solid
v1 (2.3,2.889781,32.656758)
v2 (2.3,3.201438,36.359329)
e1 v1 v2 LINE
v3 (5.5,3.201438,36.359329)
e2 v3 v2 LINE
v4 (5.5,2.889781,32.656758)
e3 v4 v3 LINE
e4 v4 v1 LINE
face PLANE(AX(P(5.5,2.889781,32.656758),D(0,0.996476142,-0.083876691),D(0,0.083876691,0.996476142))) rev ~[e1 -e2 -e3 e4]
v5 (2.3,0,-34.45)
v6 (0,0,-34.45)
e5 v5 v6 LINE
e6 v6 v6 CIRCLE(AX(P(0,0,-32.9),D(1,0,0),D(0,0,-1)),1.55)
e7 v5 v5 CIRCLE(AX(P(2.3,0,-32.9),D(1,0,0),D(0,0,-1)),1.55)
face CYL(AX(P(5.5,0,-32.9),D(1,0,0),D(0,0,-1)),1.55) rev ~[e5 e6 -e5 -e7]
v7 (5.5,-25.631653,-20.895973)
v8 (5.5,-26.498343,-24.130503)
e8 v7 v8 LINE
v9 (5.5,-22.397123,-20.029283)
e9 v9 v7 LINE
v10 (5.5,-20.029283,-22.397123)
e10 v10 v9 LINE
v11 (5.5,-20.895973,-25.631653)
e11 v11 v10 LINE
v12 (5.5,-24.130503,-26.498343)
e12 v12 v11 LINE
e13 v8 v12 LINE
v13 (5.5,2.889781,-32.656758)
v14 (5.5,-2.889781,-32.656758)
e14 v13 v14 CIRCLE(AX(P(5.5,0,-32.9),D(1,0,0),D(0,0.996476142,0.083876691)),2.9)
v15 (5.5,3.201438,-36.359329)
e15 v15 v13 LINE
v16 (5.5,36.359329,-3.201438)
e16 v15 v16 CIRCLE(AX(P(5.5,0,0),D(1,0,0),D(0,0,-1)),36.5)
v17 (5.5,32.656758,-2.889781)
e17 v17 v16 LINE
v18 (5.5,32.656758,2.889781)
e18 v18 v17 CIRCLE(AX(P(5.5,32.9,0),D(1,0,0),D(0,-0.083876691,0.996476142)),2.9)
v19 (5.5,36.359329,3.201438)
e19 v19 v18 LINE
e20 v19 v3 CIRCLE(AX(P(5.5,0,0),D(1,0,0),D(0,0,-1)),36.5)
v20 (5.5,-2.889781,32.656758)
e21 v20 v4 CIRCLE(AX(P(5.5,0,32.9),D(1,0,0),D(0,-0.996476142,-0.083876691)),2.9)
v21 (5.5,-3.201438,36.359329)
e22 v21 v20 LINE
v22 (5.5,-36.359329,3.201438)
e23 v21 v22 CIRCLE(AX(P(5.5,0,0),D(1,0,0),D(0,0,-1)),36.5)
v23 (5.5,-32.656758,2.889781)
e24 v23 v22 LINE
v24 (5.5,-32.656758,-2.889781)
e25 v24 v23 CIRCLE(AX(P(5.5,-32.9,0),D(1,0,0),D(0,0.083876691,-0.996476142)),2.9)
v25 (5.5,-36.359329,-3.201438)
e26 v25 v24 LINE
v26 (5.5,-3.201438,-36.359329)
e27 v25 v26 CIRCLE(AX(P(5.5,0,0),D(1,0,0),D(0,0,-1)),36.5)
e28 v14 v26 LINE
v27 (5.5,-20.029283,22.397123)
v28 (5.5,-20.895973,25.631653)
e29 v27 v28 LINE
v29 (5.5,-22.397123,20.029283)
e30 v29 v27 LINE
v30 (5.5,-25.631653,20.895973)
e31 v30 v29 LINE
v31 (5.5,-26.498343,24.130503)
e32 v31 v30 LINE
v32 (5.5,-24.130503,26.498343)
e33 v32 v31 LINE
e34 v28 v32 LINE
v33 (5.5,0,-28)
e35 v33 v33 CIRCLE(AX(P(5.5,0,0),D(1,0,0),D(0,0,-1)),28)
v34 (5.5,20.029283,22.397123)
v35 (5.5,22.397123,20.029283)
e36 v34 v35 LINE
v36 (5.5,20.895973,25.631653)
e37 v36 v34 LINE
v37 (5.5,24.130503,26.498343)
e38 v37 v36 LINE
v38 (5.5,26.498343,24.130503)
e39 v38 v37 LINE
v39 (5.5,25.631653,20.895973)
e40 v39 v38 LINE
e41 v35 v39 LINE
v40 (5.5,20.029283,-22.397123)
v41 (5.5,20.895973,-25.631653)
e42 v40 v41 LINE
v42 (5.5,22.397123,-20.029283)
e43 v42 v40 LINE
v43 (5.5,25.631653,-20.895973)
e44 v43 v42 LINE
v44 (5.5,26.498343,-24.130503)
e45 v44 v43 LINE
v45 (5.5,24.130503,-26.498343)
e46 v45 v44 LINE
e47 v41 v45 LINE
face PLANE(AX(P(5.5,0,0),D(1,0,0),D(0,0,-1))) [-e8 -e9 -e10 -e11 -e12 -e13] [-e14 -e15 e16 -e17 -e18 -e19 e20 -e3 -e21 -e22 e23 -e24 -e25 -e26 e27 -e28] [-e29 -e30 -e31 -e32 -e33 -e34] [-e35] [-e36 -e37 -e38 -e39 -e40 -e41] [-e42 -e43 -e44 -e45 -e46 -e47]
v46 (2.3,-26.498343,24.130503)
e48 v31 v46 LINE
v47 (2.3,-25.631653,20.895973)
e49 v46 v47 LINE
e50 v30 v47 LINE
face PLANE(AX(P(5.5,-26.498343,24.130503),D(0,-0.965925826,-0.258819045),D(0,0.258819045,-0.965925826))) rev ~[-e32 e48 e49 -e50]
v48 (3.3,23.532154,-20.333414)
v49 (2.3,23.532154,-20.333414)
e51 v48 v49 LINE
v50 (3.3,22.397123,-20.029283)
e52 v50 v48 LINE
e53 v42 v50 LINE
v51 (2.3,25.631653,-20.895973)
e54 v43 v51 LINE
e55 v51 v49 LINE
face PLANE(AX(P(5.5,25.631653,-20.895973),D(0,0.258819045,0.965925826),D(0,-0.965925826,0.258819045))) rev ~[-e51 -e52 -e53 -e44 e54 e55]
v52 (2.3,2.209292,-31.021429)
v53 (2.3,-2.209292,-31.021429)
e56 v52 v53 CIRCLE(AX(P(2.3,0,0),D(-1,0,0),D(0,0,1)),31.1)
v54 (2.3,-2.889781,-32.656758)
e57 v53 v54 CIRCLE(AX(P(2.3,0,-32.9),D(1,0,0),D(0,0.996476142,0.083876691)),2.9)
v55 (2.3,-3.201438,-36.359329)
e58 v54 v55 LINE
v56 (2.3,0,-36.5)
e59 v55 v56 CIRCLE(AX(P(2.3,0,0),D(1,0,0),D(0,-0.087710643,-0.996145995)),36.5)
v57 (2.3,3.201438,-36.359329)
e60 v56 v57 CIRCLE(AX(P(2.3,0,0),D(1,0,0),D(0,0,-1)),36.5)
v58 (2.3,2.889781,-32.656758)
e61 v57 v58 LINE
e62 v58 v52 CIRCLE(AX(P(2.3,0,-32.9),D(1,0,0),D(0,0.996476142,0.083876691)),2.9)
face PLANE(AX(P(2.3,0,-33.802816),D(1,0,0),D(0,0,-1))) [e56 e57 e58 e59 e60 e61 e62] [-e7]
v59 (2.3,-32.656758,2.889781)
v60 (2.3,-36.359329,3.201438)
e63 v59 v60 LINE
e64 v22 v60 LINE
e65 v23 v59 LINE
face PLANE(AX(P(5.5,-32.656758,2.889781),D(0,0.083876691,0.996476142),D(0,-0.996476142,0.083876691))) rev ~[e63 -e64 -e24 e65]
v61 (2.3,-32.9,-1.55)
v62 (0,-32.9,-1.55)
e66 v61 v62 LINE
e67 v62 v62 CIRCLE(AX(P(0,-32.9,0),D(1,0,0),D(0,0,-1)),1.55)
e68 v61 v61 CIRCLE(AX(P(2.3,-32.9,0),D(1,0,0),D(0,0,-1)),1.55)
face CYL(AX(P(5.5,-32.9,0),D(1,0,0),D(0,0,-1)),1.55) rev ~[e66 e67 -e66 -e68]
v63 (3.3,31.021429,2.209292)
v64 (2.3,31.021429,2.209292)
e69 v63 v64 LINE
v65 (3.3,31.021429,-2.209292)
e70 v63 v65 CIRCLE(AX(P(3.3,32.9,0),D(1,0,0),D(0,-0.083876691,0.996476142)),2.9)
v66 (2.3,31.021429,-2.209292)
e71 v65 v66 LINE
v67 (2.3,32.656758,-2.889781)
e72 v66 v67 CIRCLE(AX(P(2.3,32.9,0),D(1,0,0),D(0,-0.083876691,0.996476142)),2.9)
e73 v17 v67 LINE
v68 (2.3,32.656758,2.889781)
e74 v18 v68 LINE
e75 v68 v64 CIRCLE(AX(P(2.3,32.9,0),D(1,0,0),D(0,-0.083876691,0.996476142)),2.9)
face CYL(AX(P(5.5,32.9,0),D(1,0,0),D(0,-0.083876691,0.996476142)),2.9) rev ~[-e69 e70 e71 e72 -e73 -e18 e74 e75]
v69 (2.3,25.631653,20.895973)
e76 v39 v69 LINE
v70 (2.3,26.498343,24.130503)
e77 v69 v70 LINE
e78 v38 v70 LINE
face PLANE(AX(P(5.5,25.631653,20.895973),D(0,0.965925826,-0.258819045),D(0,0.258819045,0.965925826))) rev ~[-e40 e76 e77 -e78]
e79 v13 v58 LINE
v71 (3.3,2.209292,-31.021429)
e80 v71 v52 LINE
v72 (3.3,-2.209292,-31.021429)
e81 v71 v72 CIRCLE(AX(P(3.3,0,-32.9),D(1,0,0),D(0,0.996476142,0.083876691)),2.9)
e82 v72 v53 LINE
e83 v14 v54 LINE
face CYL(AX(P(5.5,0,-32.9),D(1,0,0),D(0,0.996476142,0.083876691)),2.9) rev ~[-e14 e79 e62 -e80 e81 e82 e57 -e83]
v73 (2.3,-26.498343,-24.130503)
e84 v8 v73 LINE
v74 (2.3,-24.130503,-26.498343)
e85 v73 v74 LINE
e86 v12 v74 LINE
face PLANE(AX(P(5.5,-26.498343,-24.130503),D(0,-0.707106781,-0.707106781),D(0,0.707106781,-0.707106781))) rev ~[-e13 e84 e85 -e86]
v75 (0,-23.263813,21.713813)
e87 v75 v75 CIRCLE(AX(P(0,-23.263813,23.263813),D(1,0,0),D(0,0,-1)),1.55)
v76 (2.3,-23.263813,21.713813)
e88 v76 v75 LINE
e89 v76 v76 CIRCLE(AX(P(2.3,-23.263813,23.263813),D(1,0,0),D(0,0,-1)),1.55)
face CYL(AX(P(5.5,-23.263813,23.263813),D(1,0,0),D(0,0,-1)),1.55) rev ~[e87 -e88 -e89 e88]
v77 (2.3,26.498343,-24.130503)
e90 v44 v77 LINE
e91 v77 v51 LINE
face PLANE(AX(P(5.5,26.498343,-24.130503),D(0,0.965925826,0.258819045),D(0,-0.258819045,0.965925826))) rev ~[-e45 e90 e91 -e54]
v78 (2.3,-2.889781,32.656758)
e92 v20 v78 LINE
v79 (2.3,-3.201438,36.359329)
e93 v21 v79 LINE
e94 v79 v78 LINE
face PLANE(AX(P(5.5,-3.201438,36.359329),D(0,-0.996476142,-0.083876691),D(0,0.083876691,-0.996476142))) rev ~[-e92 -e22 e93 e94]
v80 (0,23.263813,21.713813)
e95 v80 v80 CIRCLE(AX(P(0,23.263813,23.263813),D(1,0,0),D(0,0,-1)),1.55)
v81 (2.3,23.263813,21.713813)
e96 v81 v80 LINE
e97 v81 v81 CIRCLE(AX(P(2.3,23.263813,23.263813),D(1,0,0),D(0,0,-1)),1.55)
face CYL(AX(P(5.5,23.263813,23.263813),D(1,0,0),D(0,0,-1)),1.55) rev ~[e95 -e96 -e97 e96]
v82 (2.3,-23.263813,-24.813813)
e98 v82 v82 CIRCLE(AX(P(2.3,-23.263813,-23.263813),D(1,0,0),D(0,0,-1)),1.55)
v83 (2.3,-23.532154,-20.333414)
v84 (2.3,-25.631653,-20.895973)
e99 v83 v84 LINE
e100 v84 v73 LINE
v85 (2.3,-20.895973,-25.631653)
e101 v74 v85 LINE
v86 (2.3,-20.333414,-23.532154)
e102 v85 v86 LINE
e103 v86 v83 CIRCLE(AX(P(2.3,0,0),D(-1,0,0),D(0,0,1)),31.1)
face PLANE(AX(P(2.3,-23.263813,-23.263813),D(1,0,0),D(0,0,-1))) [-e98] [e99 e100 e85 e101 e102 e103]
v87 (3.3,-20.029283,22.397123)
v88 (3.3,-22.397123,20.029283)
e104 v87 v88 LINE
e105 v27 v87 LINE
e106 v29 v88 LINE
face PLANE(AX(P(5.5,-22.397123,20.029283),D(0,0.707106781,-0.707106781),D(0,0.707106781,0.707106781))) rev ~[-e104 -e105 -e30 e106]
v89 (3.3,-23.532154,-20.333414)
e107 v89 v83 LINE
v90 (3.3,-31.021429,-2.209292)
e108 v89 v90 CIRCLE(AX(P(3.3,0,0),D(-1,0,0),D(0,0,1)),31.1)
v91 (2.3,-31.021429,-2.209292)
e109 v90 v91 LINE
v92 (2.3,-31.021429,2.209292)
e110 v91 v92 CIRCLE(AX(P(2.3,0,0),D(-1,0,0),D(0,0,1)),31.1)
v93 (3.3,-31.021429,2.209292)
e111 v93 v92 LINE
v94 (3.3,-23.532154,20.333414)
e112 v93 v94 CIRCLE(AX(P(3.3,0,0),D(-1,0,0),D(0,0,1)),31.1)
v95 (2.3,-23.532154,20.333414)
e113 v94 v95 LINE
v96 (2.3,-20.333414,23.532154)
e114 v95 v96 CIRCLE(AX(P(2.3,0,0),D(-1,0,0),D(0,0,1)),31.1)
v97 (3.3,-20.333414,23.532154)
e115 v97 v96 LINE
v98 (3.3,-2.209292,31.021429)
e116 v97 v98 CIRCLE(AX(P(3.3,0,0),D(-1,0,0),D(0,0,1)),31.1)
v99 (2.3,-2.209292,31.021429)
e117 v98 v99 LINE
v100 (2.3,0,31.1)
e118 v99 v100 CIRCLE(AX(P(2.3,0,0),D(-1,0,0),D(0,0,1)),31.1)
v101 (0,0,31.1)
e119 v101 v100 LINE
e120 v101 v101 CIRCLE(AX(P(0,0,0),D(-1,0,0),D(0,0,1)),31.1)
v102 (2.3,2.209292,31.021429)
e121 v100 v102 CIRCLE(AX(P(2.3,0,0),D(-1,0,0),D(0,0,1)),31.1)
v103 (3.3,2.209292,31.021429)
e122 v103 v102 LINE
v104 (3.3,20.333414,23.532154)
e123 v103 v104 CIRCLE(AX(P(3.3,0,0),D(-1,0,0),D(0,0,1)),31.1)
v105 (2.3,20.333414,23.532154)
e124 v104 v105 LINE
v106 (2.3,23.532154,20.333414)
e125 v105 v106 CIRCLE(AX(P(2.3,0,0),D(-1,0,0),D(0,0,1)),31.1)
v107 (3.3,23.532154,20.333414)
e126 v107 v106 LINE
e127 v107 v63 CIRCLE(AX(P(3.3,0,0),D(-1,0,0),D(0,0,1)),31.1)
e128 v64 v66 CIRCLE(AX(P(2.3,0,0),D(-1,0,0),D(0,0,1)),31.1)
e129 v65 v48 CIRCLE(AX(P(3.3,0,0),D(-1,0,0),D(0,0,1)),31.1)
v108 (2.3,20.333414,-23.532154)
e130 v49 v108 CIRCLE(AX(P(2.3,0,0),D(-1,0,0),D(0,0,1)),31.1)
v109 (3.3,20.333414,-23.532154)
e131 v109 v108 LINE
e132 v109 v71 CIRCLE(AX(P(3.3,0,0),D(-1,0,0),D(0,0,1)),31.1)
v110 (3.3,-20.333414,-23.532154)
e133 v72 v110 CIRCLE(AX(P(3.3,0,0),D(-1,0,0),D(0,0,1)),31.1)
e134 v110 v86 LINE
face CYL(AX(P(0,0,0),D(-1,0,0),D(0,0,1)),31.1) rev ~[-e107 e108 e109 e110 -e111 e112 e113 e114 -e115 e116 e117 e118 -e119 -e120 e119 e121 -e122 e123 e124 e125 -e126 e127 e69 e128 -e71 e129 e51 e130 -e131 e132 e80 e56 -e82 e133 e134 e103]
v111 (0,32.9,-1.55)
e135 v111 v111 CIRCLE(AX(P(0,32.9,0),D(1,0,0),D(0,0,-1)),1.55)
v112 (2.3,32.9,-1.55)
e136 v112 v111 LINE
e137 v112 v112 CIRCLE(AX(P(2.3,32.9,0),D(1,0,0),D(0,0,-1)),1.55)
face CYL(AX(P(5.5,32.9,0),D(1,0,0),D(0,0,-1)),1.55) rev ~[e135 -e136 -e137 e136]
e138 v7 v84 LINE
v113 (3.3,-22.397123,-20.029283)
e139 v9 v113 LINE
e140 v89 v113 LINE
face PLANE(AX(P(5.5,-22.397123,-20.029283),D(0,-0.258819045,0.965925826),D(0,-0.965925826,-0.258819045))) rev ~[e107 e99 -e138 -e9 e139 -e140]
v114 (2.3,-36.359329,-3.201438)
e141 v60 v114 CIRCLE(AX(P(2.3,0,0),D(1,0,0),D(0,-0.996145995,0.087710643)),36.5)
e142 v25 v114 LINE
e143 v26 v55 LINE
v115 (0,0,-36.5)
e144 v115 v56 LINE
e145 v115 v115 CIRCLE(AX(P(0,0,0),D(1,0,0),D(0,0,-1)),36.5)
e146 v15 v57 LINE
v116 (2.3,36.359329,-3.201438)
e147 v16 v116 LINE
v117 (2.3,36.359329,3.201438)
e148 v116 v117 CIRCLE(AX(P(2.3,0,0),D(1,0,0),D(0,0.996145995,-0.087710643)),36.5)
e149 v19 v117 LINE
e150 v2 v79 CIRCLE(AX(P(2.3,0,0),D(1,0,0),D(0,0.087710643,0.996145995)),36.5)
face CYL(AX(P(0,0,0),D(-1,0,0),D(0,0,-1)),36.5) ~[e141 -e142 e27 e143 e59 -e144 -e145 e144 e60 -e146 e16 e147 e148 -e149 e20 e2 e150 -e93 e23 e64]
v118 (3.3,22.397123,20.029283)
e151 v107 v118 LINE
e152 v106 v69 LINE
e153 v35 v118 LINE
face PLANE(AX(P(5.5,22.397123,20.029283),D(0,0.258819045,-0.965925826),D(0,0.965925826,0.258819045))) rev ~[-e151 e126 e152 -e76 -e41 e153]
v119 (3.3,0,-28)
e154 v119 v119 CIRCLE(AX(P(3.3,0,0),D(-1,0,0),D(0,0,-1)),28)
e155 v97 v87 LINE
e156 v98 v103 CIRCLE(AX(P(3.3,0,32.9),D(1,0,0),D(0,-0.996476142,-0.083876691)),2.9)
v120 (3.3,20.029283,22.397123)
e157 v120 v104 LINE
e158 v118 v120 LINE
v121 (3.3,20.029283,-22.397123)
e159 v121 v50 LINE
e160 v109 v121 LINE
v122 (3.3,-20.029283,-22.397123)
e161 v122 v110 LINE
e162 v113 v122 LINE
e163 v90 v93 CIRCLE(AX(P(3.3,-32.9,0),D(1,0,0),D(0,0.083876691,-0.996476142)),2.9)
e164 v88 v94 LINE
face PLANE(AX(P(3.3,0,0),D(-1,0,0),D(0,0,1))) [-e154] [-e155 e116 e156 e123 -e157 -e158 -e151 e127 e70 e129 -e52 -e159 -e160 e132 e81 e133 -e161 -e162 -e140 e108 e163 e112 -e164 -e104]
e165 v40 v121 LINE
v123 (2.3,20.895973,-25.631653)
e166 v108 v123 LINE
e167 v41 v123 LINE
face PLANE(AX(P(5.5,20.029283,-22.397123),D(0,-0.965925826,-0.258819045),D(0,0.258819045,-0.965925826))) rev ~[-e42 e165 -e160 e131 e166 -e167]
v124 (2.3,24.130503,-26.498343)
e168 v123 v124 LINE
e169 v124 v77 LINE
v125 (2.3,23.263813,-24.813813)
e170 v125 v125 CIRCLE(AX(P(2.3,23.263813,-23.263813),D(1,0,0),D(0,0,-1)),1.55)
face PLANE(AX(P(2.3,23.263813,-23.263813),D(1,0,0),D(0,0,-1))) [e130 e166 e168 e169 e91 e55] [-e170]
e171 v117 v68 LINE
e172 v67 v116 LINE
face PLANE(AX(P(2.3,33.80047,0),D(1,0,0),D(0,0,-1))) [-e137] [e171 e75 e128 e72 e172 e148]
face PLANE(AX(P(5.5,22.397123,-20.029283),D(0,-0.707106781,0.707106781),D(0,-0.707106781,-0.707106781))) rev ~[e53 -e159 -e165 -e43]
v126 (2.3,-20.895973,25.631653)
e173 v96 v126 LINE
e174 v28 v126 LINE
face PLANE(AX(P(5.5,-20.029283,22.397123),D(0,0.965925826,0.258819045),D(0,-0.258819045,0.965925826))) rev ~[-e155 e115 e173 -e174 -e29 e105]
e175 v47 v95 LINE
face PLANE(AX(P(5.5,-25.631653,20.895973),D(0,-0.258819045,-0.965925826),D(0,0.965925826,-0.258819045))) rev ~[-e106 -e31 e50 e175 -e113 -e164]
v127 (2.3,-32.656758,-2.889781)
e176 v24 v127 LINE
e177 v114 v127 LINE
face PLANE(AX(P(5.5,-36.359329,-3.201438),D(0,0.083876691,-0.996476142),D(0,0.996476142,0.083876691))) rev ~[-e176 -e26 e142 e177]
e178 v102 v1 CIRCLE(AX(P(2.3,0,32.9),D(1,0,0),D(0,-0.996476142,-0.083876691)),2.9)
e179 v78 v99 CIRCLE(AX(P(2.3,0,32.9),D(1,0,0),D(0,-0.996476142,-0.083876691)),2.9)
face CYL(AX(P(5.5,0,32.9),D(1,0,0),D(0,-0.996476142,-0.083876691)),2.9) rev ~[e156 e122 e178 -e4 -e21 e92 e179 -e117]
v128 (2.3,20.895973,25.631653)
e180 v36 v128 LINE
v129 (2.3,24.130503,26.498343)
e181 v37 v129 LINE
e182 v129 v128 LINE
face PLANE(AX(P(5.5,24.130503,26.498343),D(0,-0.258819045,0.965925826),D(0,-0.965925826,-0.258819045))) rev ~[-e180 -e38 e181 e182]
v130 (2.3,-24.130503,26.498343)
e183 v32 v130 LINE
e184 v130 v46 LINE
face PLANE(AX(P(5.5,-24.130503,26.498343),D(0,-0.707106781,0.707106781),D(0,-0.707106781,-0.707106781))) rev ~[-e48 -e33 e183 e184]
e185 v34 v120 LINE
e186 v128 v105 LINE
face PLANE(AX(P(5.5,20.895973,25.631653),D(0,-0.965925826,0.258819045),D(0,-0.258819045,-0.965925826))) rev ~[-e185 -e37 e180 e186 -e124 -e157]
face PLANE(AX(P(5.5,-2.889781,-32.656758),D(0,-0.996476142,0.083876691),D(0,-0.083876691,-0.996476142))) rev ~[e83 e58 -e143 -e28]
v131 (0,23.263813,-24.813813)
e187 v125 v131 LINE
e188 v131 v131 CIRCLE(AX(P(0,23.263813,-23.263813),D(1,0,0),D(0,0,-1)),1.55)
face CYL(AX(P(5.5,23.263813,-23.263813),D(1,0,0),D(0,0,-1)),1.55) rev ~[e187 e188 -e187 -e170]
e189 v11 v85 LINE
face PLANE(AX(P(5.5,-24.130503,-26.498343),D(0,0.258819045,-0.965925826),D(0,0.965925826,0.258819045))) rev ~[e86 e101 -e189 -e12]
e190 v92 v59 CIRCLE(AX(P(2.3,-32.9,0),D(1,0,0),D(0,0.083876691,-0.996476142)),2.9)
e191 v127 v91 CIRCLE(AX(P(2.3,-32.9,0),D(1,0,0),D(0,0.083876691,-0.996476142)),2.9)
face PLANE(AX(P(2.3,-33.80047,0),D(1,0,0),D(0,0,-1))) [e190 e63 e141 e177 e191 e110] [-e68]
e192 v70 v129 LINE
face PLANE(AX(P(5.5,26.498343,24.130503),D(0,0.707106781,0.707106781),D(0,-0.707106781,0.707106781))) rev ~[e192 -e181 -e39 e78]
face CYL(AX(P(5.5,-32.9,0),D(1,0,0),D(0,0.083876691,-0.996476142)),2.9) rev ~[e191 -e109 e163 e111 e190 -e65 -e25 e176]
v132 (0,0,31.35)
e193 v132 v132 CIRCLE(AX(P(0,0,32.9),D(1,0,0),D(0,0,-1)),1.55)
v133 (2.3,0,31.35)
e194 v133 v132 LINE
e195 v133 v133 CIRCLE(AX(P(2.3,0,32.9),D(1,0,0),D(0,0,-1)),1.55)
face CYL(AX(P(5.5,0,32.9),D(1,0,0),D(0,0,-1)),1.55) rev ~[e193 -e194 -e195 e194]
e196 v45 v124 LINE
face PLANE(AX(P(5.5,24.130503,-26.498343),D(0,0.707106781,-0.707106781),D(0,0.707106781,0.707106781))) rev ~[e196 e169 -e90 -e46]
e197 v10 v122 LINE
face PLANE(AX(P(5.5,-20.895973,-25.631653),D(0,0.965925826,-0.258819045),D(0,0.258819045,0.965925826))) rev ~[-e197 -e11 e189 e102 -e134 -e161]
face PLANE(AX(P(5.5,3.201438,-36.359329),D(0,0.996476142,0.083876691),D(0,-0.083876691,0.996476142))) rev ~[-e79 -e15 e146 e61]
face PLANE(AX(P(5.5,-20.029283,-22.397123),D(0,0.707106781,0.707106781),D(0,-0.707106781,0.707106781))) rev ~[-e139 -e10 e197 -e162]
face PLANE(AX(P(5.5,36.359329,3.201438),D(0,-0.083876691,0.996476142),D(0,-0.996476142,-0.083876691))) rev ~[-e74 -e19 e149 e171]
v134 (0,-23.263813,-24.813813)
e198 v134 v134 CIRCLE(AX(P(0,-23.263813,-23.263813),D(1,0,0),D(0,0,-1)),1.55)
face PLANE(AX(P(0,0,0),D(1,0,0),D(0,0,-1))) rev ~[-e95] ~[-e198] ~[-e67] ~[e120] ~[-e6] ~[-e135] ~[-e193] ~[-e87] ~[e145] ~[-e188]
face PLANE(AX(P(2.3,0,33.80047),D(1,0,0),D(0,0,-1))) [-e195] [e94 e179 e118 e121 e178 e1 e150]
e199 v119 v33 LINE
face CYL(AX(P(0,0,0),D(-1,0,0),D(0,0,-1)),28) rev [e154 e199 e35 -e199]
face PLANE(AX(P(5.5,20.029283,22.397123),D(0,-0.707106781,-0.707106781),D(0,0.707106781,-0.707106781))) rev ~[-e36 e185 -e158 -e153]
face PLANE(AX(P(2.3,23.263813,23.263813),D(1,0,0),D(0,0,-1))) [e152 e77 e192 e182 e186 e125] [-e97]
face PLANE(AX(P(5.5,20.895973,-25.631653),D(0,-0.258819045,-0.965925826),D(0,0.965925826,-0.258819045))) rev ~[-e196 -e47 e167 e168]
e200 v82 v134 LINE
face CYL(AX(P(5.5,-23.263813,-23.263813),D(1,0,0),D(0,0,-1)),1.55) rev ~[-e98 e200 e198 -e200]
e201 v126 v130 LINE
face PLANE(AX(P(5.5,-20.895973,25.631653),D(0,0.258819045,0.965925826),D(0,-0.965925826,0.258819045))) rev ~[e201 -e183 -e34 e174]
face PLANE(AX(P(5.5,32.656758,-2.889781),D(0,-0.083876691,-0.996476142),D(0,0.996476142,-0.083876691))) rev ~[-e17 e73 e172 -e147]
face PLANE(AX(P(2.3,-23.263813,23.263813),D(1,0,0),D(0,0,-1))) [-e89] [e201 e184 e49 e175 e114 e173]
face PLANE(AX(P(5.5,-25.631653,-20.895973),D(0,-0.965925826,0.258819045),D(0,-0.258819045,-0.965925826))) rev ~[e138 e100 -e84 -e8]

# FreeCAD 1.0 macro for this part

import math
import FreeCAD as App
import Part
import Sketcher
from FreeCAD import Vector
Q = App.Units.Quantity


def add_polygon(sketch, points):
    """Adds a closed chain of lines whose ends are joined by coincident constraints."""
    first, n = sketch.GeometryCount, len(points)
    for a, b in zip(points, points[1:] + points[:1]):
        sketch.addGeometry(Part.LineSegment(App.Vector(*a, 0), App.Vector(*b, 0)), False)
    for i in range(n):
        sketch.addConstraint(Sketcher.Constraint("Coincident", first + i, 2, first + (i + 1) % n, 1))

doc = App.newDocument("Part")
params = doc.addObject("Spreadsheet::Sheet", "Params")
for row, (alias, value) in enumerate([
    ("sketch1_diameter", "73 mm"),
    ("sketch1_diameter2", "56 mm"),
    ("pad1_length", "5.5 mm"),
    ("sketch2_diameter", "62.2 mm"),
    ("pocket1_length", "3.3 mm"),
    ("sketch3_diameter", "3.1 mm"),
    ("sketch4_diameter", "3.1 mm"),
    ("sketch5_diameter", "3.1 mm"),
    ("sketch6_diameter", "3.1 mm"),
    ("sketch7_diameter", "3.1 mm"),
    ("sketch8_diameter", "3.1 mm"),
    ("sketch9_diameter", "3.1 mm"),
    ("sketch10_diameter", "3.1 mm"),
    ("sketch11_diameter", "3.1 mm"),
    ("sketch11_radius", "36.5 mm"),
    ("sketch11_radius2", "2.9 mm"),
    ("pocket10_length", "3.2 mm"),
], start=1):
    params.set(f"A{row}", alias)
    params.set(f"B{row}", "=" + value)
    params.setAlias(f"B{row}", alias)

body = doc.addObject("PartDesign::Body", "Body")

# Sketch on YZ plane
sketch1 = body.newObject("Sketcher::SketchObject", "Sketch")
sketch1.AttachmentSupport = (doc.getObject("YZ_Plane"), [""])
sketch1.MapMode = "FlatFace"
sketch1.addGeometry(Part.Circle(Vector(0, 0, 0), Vector(0, 0, 1), 36), False)
sketch1.addGeometry(Part.Circle(Vector(0, 0, 0), Vector(0, 0, 1), 28), False)
sketch1.addConstraint(Sketcher.Constraint("Coincident", 0, 3, -1, 1))
sketch1.addConstraint(Sketcher.Constraint("Coincident", 1, 3, -1, 1))
sketch1.addConstraint(Sketcher.Constraint("Diameter", 0, Q("73 mm")))
sketch1.addConstraint(Sketcher.Constraint("Diameter", 1, Q("56 mm")))
sketch1.setExpression("Constraints[2]", "Params.sketch1_diameter")
sketch1.setExpression("Constraints[3]", "Params.sketch1_diameter2")
pad1 = body.newObject("PartDesign::Pad", "Pad")
pad1.Profile = sketch1
pad1.setExpression("Length", "Params.pad1_length")

# Sketch on YZ plane
sketch2 = body.newObject("Sketcher::SketchObject", "Sketch001")
sketch2.AttachmentSupport = (doc.getObject("YZ_Plane"), [""])
sketch2.MapMode = "FlatFace"
sketch2.addGeometry(Part.Circle(Vector(0, 0, 0), Vector(0, 0, 1), 31), False)
sketch2.addConstraint(Sketcher.Constraint("Coincident", 0, 3, -1, 1))
sketch2.addConstraint(Sketcher.Constraint("Diameter", 0, Q("62.2 mm")))
sketch2.setExpression("Constraints[1]", "Params.sketch2_diameter")
pocket1 = body.newObject("PartDesign::Pocket", "Pocket")
pocket1.Profile = sketch2
pocket1.setExpression("Length", "Params.pocket1_length")
pocket1.Reversed = True

# Sketch on YZ plane
sketch3 = body.newObject("Sketcher::SketchObject", "Sketch002")
sketch3.AttachmentSupport = (doc.getObject("YZ_Plane"), [""])
sketch3.MapMode = "FlatFace"
sketch3.AttachmentOffset = App.Placement(Vector(0, 0, 5.5), App.Rotation())
sketch3.addGeometry(Part.Circle(Vector(0, -32.9, 0), Vector(0, 0, 1), 1.6), False)
sketch3.addConstraint(Sketcher.Constraint("PointOnObject", 0, 3, -2))
sketch3.addConstraint(Sketcher.Constraint("Diameter", 0, Q("3.1 mm")))
sketch3.addConstraint(Sketcher.Constraint("DistanceY", 0, 3, -1, 1, Q("32.9 mm")))
sketch3.setExpression("Constraints[1]", "Params.sketch3_diameter")
pocket2 = body.newObject("PartDesign::Pocket", "Pocket001")
pocket2.Profile = sketch3
pocket2.Type = "UpToFirst"

# Sketch on YZ plane
sketch4 = body.newObject("Sketcher::SketchObject", "Sketch003")
sketch4.AttachmentSupport = (doc.getObject("YZ_Plane"), [""])
sketch4.MapMode = "FlatFace"
sketch4.AttachmentOffset = App.Placement(Vector(0, 0, 5.5), App.Rotation())
sketch4.addGeometry(Part.Circle(Vector(-23.3, -23.3, 0), Vector(0, 0, 1), 1.6), False)
sketch4.addConstraint(Sketcher.Constraint("Diameter", 0, Q("3.1 mm")))
sketch4.addConstraint(Sketcher.Constraint("DistanceX", 0, 3, -1, 1, Q("23.263813 mm")))
sketch4.addConstraint(Sketcher.Constraint("DistanceY", 0, 3, -1, 1, Q("23.263813 mm")))
sketch4.setExpression("Constraints[0]", "Params.sketch4_diameter")
pocket3 = body.newObject("PartDesign::Pocket", "Pocket002")
pocket3.Profile = sketch4
pocket3.Type = "UpToFirst"

# Sketch on YZ plane
sketch5 = body.newObject("Sketcher::SketchObject", "Sketch004")
sketch5.AttachmentSupport = (doc.getObject("YZ_Plane"), [""])
sketch5.MapMode = "FlatFace"
sketch5.AttachmentOffset = App.Placement(Vector(0, 0, 5.5), App.Rotation())
sketch5.addGeometry(Part.Circle(Vector(-32.9, 0, 0), Vector(0, 0, 1), 1.6), False)
sketch5.addConstraint(Sketcher.Constraint("PointOnObject", 0, 3, -1))
sketch5.addConstraint(Sketcher.Constraint("Diameter", 0, Q("3.1 mm")))
sketch5.addConstraint(Sketcher.Constraint("DistanceX", 0, 3, -1, 1, Q("32.9 mm")))
sketch5.setExpression("Constraints[1]", "Params.sketch5_diameter")
pocket4 = body.newObject("PartDesign::Pocket", "Pocket003")
pocket4.Profile = sketch5
pocket4.Type = "UpToFirst"

# Sketch on YZ plane
sketch6 = body.newObject("Sketcher::SketchObject", "Sketch005")
sketch6.AttachmentSupport = (doc.getObject("YZ_Plane"), [""])
sketch6.MapMode = "FlatFace"
sketch6.AttachmentOffset = App.Placement(Vector(0, 0, 5.5), App.Rotation())
sketch6.addGeometry(Part.Circle(Vector(-23.3, 23.3, 0), Vector(0, 0, 1), 1.6), False)
sketch6.addConstraint(Sketcher.Constraint("Diameter", 0, Q("3.1 mm")))
sketch6.addConstraint(Sketcher.Constraint("DistanceX", 0, 3, -1, 1, Q("23.263813 mm")))
sketch6.addConstraint(Sketcher.Constraint("DistanceY", -1, 1, 0, 3, Q("23.263813 mm")))
sketch6.setExpression("Constraints[0]", "Params.sketch6_diameter")
pocket5 = body.newObject("PartDesign::Pocket", "Pocket004")
pocket5.Profile = sketch6
pocket5.Type = "UpToFirst"

# Sketch on YZ plane
sketch7 = body.newObject("Sketcher::SketchObject", "Sketch006")
sketch7.AttachmentSupport = (doc.getObject("YZ_Plane"), [""])
sketch7.MapMode = "FlatFace"
sketch7.AttachmentOffset = App.Placement(Vector(0, 0, 5.5), App.Rotation())
sketch7.addGeometry(Part.Circle(Vector(0, 32.9, 0), Vector(0, 0, 1), 1.6), False)
sketch7.addConstraint(Sketcher.Constraint("PointOnObject", 0, 3, -2))
sketch7.addConstraint(Sketcher.Constraint("Diameter", 0, Q("3.1 mm")))
sketch7.addConstraint(Sketcher.Constraint("DistanceY", -1, 1, 0, 3, Q("32.9 mm")))
sketch7.setExpression("Constraints[1]", "Params.sketch7_diameter")
pocket6 = body.newObject("PartDesign::Pocket", "Pocket005")
pocket6.Profile = sketch7
pocket6.Type = "UpToFirst"

# Sketch on YZ plane
sketch8 = body.newObject("Sketcher::SketchObject", "Sketch007")
sketch8.AttachmentSupport = (doc.getObject("YZ_Plane"), [""])
sketch8.MapMode = "FlatFace"
sketch8.AttachmentOffset = App.Placement(Vector(0, 0, 5.5), App.Rotation())
sketch8.addGeometry(Part.Circle(Vector(23.3, 23.3, 0), Vector(0, 0, 1), 1.6), False)
sketch8.addConstraint(Sketcher.Constraint("Diameter", 0, Q("3.1 mm")))
sketch8.addConstraint(Sketcher.Constraint("DistanceX", -1, 1, 0, 3, Q("23.263813 mm")))
sketch8.addConstraint(Sketcher.Constraint("DistanceY", -1, 1, 0, 3, Q("23.263813 mm")))
sketch8.setExpression("Constraints[0]", "Params.sketch8_diameter")
pocket7 = body.newObject("PartDesign::Pocket", "Pocket006")
pocket7.Profile = sketch8
pocket7.Type = "UpToFirst"

# Sketch on YZ plane
sketch9 = body.newObject("Sketcher::SketchObject", "Sketch008")
sketch9.AttachmentSupport = (doc.getObject("YZ_Plane"), [""])
sketch9.MapMode = "FlatFace"
sketch9.AttachmentOffset = App.Placement(Vector(0, 0, 5.5), App.Rotation())
sketch9.addGeometry(Part.Circle(Vector(32.9, 0, 0), Vector(0, 0, 1), 1.6), False)
sketch9.addConstraint(Sketcher.Constraint("PointOnObject", 0, 3, -1))
sketch9.addConstraint(Sketcher.Constraint("Diameter", 0, Q("3.1 mm")))
sketch9.addConstraint(Sketcher.Constraint("DistanceX", -1, 1, 0, 3, Q("32.9 mm")))
sketch9.setExpression("Constraints[1]", "Params.sketch9_diameter")
pocket8 = body.newObject("PartDesign::Pocket", "Pocket007")
pocket8.Profile = sketch9
pocket8.Type = "UpToFirst"

# Sketch on YZ plane
sketch10 = body.newObject("Sketcher::SketchObject", "Sketch009")
sketch10.AttachmentSupport = (doc.getObject("YZ_Plane"), [""])
sketch10.MapMode = "FlatFace"
sketch10.AttachmentOffset = App.Placement(Vector(0, 0, 5.5), App.Rotation())
sketch10.addGeometry(Part.Circle(Vector(23.3, -23.3, 0), Vector(0, 0, 1), 1.6), False)
sketch10.addConstraint(Sketcher.Constraint("Diameter", 0, Q("3.1 mm")))
sketch10.addConstraint(Sketcher.Constraint("DistanceX", -1, 1, 0, 3, Q("23.263813 mm")))
sketch10.addConstraint(Sketcher.Constraint("DistanceY", 0, 3, -1, 1, Q("23.263813 mm")))
sketch10.setExpression("Constraints[0]", "Params.sketch10_diameter")
pocket9 = body.newObject("PartDesign::Pocket", "Pocket008")
pocket9.Profile = sketch10
pocket9.Type = "UpToFirst"

# Sketch on YZ plane
sketch11 = body.newObject("Sketcher::SketchObject", "Sketch010")
sketch11.AttachmentSupport = (doc.getObject("YZ_Plane"), [""])
sketch11.MapMode = "FlatFace"
sketch11.AttachmentOffset = App.Placement(Vector(0, 0, 5.5), App.Rotation())
sketch11.addGeometry(Part.LineSegment(Vector(2.9, 32.7, 0), Vector(3.2, 36.4, 0)), False)  # 0
sketch11.addGeometry(Part.ArcOfCircle(Part.Circle(Vector(0, 0, 0), Vector(0, 0, 1), 36.5), math.radians(84.97), math.radians(95.03)), False)  # 1
sketch11.addGeometry(Part.LineSegment(Vector(-3.2, 36.4, 0), Vector(-2.9, 32.7, 0)), False)  # 2
sketch11.addGeometry(Part.ArcOfCircle(Part.Circle(Vector(0, 32.9, 0), Vector(0, 0, 1), 2.9), math.radians(-175), math.radians(-5)), False)  # 3
sketch11.addGeometry(Part.Circle(Vector(0, 32.9, 0), Vector(0, 0, 1), 1.6), False)  # 4
sketch11.addGeometry(Part.LineSegment(Vector(32.7, -2.9, 0), Vector(36.4, -3.2, 0)), False)  # 5
sketch11.addGeometry(Part.ArcOfCircle(Part.Circle(Vector(0, 0, 0), Vector(0, 0, 1), 36.5), math.radians(-5.03), math.radians(5.03)), False)  # 6
sketch11.addGeometry(Part.LineSegment(Vector(36.4, 3.2, 0), Vector(32.7, 2.9, 0)), False)  # 7
sketch11.addGeometry(Part.ArcOfCircle(Part.Circle(Vector(32.9, 0, 0), Vector(0, 0, 1), 2.9), math.radians(95), math.radians(265)), False)  # 8
sketch11.addGeometry(Part.Circle(Vector(32.9, 0, 0), Vector(0, 0, 1), 1.6), False)  # 9
add_polygon(sketch11, [(24.1, -26.5), (26.5, -24.1), (25.6, -20.9), (22.4, -20), (20, -22.4), (20.9, -25.6)])  # lines 10-15
sketch11.addGeometry(Part.Circle(Vector(23.3, -23.3, 0), Vector(0, 0, 1), 1.6), False)  # 16
sketch11.addGeometry(Part.LineSegment(Vector(3.2, -36.4, 0), Vector(2.9, -32.7, 0)), False)  # 17
sketch11.addGeometry(Part.ArcOfCircle(Part.Circle(Vector(0, -32.9, 0), Vector(0, 0, 1), 2.9), math.radians(5), math.radians(175)), False)  # 18
sketch11.addGeometry(Part.LineSegment(Vector(-2.9, -32.7, 0), Vector(-3.2, -36.4, 0)), False)  # 19
sketch11.addGeometry(Part.ArcOfCircle(Part.Circle(Vector(0, 0, 0), Vector(0, 0, 1), 36.5), math.radians(-95.03), math.radians(-90)), False)  # 20
sketch11.addGeometry(Part.ArcOfCircle(Part.Circle(Vector(0, 0, 0), Vector(0, 0, 1), 36.5), math.radians(-90), math.radians(-84.97)), False)  # 21
sketch11.addGeometry(Part.Circle(Vector(0, -32.9, 0), Vector(0, 0, 1), 1.6), False)  # 22
add_polygon(sketch11, [(-26.5, -24.1), (-24.1, -26.5), (-20.9, -25.6), (-20, -22.4), (-22.4, -20), (-25.6, -20.9)])  # lines 23-28
sketch11.addGeometry(Part.Circle(Vector(-23.3, -23.3, 0), Vector(0, 0, 1), 1.6), False)  # 29
sketch11.addGeometry(Part.ArcOfCircle(Part.Circle(Vector(0, 0, 0), Vector(0, 0, 1), 36.5), math.radians(174.97), math.radians(185.03)), False)  # 30
sketch11.addGeometry(Part.LineSegment(Vector(-36.4, -3.2, 0), Vector(-32.7, -2.9, 0)), False)  # 31
sketch11.addGeometry(Part.ArcOfCircle(Part.Circle(Vector(-32.9, 0, 0), Vector(0, 0, 1), 2.9), math.radians(-85), math.radians(85)), False)  # 32
sketch11.addGeometry(Part.LineSegment(Vector(-32.7, 2.9, 0), Vector(-36.4, 3.2, 0)), False)  # 33
sketch11.addGeometry(Part.Circle(Vector(-32.9, 0, 0), Vector(0, 0, 1), 1.6), False)  # 34
add_polygon(sketch11, [(-25.6, 20.9), (-22.4, 20), (-20, 22.4), (-20.9, 25.6), (-24.1, 26.5), (-26.5, 24.1)])  # lines 35-40
add_polygon(sketch11, [(22.4, 20), (25.6, 20.9), (26.5, 24.1), (24.1, 26.5), (20.9, 25.6), (20, 22.4)])  # lines 41-46
sketch11.addConstraint(Sketcher.Constraint("Coincident", 0, 2, 1, 1))
sketch11.addConstraint(Sketcher.Constraint("Coincident", 1, 2, 2, 1))
sketch11.addConstraint(Sketcher.Constraint("Tangent", 2, 2, 3, 1))
sketch11.addConstraint(Sketcher.Constraint("Tangent", 3, 2, 0, 1))
sketch11.addConstraint(Sketcher.Constraint("Coincident", 5, 2, 6, 1))
sketch11.addConstraint(Sketcher.Constraint("Coincident", 6, 2, 7, 1))
sketch11.addConstraint(Sketcher.Constraint("Tangent", 7, 2, 8, 1))
sketch11.addConstraint(Sketcher.Constraint("Tangent", 8, 2, 5, 1))
sketch11.addConstraint(Sketcher.Constraint("Tangent", 17, 2, 18, 1))
sketch11.addConstraint(Sketcher.Constraint("Tangent", 18, 2, 19, 1))
sketch11.addConstraint(Sketcher.Constraint("Coincident", 19, 2, 20, 1))
sketch11.addConstraint(Sketcher.Constraint("Tangent", 20, 2, 21, 1))
sketch11.addConstraint(Sketcher.Constraint("Coincident", 21, 2, 17, 1))
sketch11.addConstraint(Sketcher.Constraint("Coincident", 30, 2, 31, 1))
sketch11.addConstraint(Sketcher.Constraint("Tangent", 31, 2, 32, 1))
sketch11.addConstraint(Sketcher.Constraint("Tangent", 32, 2, 33, 1))
sketch11.addConstraint(Sketcher.Constraint("Coincident", 33, 2, 30, 1))
sketch11.addConstraint(Sketcher.Constraint("Coincident", 1, 3, -1, 1))
sketch11.addConstraint(Sketcher.Constraint("Coincident", 6, 3, -1, 1))
sketch11.addConstraint(Sketcher.Constraint("Coincident", 20, 3, -1, 1))
sketch11.addConstraint(Sketcher.Constraint("Coincident", 30, 3, -1, 1))
sketch11.addConstraint(Sketcher.Constraint("Coincident", 4, 3, 3, 3))
sketch11.addConstraint(Sketcher.Constraint("Coincident", 9, 3, 8, 3))
sketch11.addConstraint(Sketcher.Constraint("Coincident", 22, 3, 18, 3))
sketch11.addConstraint(Sketcher.Constraint("Coincident", 34, 3, 32, 3))
sketch11.addConstraint(Sketcher.Constraint("Equal", 1, 6))
sketch11.addConstraint(Sketcher.Constraint("Equal", 3, 8))
sketch11.addConstraint(Sketcher.Constraint("Equal", 4, 9))
sketch11.addConstraint(Sketcher.Constraint("Equal", 9, 16))
sketch11.addConstraint(Sketcher.Constraint("Equal", 8, 18))
sketch11.addConstraint(Sketcher.Constraint("Equal", 6, 20))
sketch11.addConstraint(Sketcher.Constraint("Equal", 20, 21))
sketch11.addConstraint(Sketcher.Constraint("Equal", 16, 22))
sketch11.addConstraint(Sketcher.Constraint("Equal", 22, 29))
sketch11.addConstraint(Sketcher.Constraint("Equal", 21, 30))
sketch11.addConstraint(Sketcher.Constraint("Equal", 18, 32))
sketch11.addConstraint(Sketcher.Constraint("Equal", 29, 34))
sketch11.addConstraint(Sketcher.Constraint("Symmetric", 3, 3, 18, 3, -1, 1))
sketch11.addConstraint(Sketcher.Constraint("Symmetric", 8, 3, 32, 3, -1, 1))
sketch11.addConstraint(Sketcher.Constraint("Symmetric", 12, 2, 35, 2, -1, 1))
sketch11.addConstraint(Sketcher.Constraint("Symmetric", 13, 2, 36, 2, -1, 1))
sketch11.addConstraint(Sketcher.Constraint("Symmetric", 14, 2, 37, 2, -1, 1))
sketch11.addConstraint(Sketcher.Constraint("Symmetric", 15, 2, 38, 2, -1, 1))
sketch11.addConstraint(Sketcher.Constraint("Symmetric", 10, 2, 39, 2, -1, 1))
sketch11.addConstraint(Sketcher.Constraint("Symmetric", 11, 2, 40, 2, -1, 1))
sketch11.addConstraint(Sketcher.Constraint("Symmetric", 27, 2, 41, 2, -1, 1))
sketch11.addConstraint(Sketcher.Constraint("Symmetric", 28, 2, 42, 2, -1, 1))
sketch11.addConstraint(Sketcher.Constraint("Symmetric", 23, 2, 43, 2, -1, 1))
sketch11.addConstraint(Sketcher.Constraint("Symmetric", 24, 2, 44, 2, -1, 1))
sketch11.addConstraint(Sketcher.Constraint("Symmetric", 25, 2, 45, 2, -1, 1))
sketch11.addConstraint(Sketcher.Constraint("Symmetric", 26, 2, 46, 2, -1, 1))
sketch11.addConstraint(Sketcher.Constraint("Symmetric", 16, 3, 29, 3, -2))
sketch11.addConstraint(Sketcher.Constraint("Symmetric", 2, 2, 3, 2, -2))
sketch11.addConstraint(Sketcher.Constraint("Symmetric", 15, 2, 23, 2, -2))
sketch11.addConstraint(Sketcher.Constraint("Symmetric", 14, 2, 24, 2, -2))
sketch11.addConstraint(Sketcher.Constraint("Symmetric", 13, 2, 25, 2, -2))
sketch11.addConstraint(Sketcher.Constraint("Symmetric", 12, 2, 26, 2, -2))
sketch11.addConstraint(Sketcher.Constraint("Symmetric", 11, 2, 27, 2, -2))
sketch11.addConstraint(Sketcher.Constraint("Symmetric", 10, 2, 28, 2, -2))
sketch11.addConstraint(Sketcher.Constraint("Symmetric", 8, 2, 31, 2, -2))
sketch11.addConstraint(Sketcher.Constraint("PointOnObject", 20, 2, -2))
sketch11.addConstraint(Sketcher.Constraint("Perpendicular", 0, 5))
sketch11.addConstraint(Sketcher.Constraint("Perpendicular", 2, 7))
sketch11.addConstraint(Sketcher.Constraint("Parallel", 10, 13))
sketch11.addConstraint(Sketcher.Constraint("Parallel", 11, 14))
sketch11.addConstraint(Sketcher.Constraint("Parallel", 12, 15))
sketch11.addConstraint(Sketcher.Constraint("Perpendicular", 7, 17))
sketch11.addConstraint(Sketcher.Constraint("Perpendicular", 5, 19))
sketch11.addConstraint(Sketcher.Constraint("Perpendicular", 13, 23))
sketch11.addConstraint(Sketcher.Constraint("Perpendicular", 14, 24))
sketch11.addConstraint(Sketcher.Constraint("Perpendicular", 19, 33))
sketch11.addConstraint(Sketcher.Constraint("Equal", 2, 5))
sketch11.addConstraint(Sketcher.Constraint("Equal", 10, 11))
sketch11.addConstraint(Sketcher.Constraint("Equal", 11, 12))
sketch11.addConstraint(Sketcher.Constraint("Equal", 12, 13))
sketch11.addConstraint(Sketcher.Constraint("Diameter", 4, Q("3.1 mm")))
sketch11.addConstraint(Sketcher.Constraint("Radius", 1, Q("36.5 mm")))
sketch11.addConstraint(Sketcher.Constraint("Radius", 3, Q("2.9 mm")))
sketch11.addConstraint(Sketcher.Constraint("Angle", 11, Q("105 deg")))
sketch11.addConstraint(Sketcher.Constraint("DistanceY", -1, 1, 3, 3, Q("32.9 mm")))
sketch11.addConstraint(Sketcher.Constraint("Distance", 10, Q("3.348632 mm")))
sketch11.addConstraint(Sketcher.Constraint("DistanceX", -1, 1, 0, 2, Q("3.201438 mm")))
sketch11.addConstraint(Sketcher.Constraint("DistanceY", 16, 3, 6, 2, Q("26.465252 mm")))
sketch11.addConstraint(Sketcher.Constraint("DistanceX", 16, 3, 10, 2, Q("3.23453 mm")))
sketch11.addConstraint(Sketcher.Constraint("DistanceY", 10, 2, 16, 3, Q("0.86669 mm")))
sketch11.addConstraint(Sketcher.Constraint("DistanceX", 17, 2, 15, 2, Q("21.240722 mm")))
sketch11.setExpression("Constraints[99]", "Params.sketch11_diameter")
sketch11.setExpression("Constraints[100]", "Params.sketch11_radius")
sketch11.setExpression("Constraints[101]", "Params.sketch11_radius2")
pocket10 = body.newObject("PartDesign::Pocket", "Pocket009")
pocket10.Profile = sketch11
pocket10.setExpression("Length", "Params.pocket10_length")

doc.recompute()
